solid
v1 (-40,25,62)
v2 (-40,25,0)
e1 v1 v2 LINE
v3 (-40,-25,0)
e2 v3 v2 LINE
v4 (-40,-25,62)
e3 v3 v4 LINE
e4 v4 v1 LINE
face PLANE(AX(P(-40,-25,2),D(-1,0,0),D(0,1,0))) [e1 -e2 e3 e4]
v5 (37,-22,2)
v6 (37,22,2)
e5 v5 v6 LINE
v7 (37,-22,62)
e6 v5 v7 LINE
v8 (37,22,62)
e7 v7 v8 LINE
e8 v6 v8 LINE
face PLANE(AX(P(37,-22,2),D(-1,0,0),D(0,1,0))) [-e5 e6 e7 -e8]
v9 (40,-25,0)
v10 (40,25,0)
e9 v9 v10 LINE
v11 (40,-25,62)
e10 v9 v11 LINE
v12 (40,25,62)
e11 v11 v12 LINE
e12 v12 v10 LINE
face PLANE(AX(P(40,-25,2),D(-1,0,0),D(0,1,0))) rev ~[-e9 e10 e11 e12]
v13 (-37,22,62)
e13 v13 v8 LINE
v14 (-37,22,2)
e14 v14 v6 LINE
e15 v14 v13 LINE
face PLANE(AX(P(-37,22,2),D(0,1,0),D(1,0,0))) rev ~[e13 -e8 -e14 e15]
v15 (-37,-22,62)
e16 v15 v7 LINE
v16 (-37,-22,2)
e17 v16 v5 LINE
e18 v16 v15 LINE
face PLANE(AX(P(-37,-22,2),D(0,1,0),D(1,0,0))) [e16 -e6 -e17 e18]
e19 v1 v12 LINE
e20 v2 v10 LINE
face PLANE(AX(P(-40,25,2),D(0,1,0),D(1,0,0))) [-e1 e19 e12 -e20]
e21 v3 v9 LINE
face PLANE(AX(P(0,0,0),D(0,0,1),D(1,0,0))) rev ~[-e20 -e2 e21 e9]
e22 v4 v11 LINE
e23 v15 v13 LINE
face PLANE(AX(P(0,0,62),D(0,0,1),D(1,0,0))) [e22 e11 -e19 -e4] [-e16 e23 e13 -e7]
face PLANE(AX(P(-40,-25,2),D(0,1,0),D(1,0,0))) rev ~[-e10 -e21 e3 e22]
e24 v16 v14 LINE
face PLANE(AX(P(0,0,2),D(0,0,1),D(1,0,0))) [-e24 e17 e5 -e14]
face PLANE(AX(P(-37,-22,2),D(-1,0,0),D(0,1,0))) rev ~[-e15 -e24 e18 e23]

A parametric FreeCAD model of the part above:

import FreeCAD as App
import Part
import Sketcher

V = App.Vector
Q = App.Units.Quantity

doc = App.newDocument("Part")
params = doc.addObject("Spreadsheet::Sheet", "Params")
for row, (alias, value) in enumerate([
    ("sketch1_width", "80 mm"),
    ("sketch1_height", "50 mm"),
    ("pad1_length", "2 mm"),
    ("sketch2_width", "80 mm"),
    ("sketch2_width2", "74 mm"),
    ("sketch2_height", "50 mm"),
    ("sketch2_height2", "44 mm"),
    ("pad2_length", "60 mm"),
], start=1):
    params.set(f"A{row}", alias)
    params.set(f"B{row}", "=" + value)
    params.setAlias(f"B{row}", alias)

body = doc.addObject("PartDesign::Body", "Body")

sketch1 = body.newObject("Sketcher::SketchObject", "Sketch")
sketch1.AttachmentSupport = (doc.getObject("XY_Plane"), [""])
sketch1.MapMode = "FlatFace"
sketch1.addGeometry([
    Part.LineSegment(V(-40, 25, 0), V(-40, -25, 0)),
    Part.LineSegment(V(-40, -25, 0), V(40, -25, 0)),
    Part.LineSegment(V(40, -25, 0), V(40, 25, 0)),
    Part.LineSegment(V(40, 25, 0), V(-40, 25, 0)),
], False)
sketch1.addConstraint([
    Sketcher.Constraint("Coincident", 0, 2, 1, 1),
    Sketcher.Constraint("Coincident", 1, 2, 2, 1),
    Sketcher.Constraint("Coincident", 2, 2, 3, 1),
    Sketcher.Constraint("Coincident", 3, 2, 0, 1),
    Sketcher.Constraint("Vertical", 0),
    Sketcher.Constraint("Horizontal", 1),
    Sketcher.Constraint("Vertical", 2),
    Sketcher.Constraint("Horizontal", 3),
    Sketcher.Constraint("Symmetric", 0, 2, 2, 2, -1, 1),
    Sketcher.Constraint("DistanceX", 1, 1, 1, 2, Q("80 mm")),
    Sketcher.Constraint("DistanceY", 0, 2, 0, 1, Q("50 mm")),
])
sketch1.setExpression("Constraints[9]", "Params.sketch1_width")
sketch1.setExpression("Constraints[10]", "Params.sketch1_height")
pad1 = body.newObject("PartDesign::Pad", "Pad")
pad1.Profile = sketch1
pad1.setExpression("Length", "Params.pad1_length")

sketch2 = body.newObject("Sketcher::SketchObject", "Sketch001")
sketch2.AttachmentSupport = (doc.getObject("XY_Plane"), [""])
sketch2.MapMode = "FlatFace"
sketch2.AttachmentOffset = App.Placement(V(0, 0, 2), App.Rotation())
sketch2.addGeometry([
    Part.LineSegment(V(-40, 25, 0), V(-40, -25, 0)),
    Part.LineSegment(V(-40, -25, 0), V(40, -25, 0)),
    Part.LineSegment(V(40, -25, 0), V(40, 25, 0)),
    Part.LineSegment(V(40, 25, 0), V(-40, 25, 0)),
    Part.LineSegment(V(37, -22, 0), V(-37, -22, 0)),
    Part.LineSegment(V(-37, -22, 0), V(-37, 22, 0)),
    Part.LineSegment(V(-37, 22, 0), V(37, 22, 0)),
    Part.LineSegment(V(37, 22, 0), V(37, -22, 0)),
], False)
sketch2.addConstraint([
    Sketcher.Constraint("Coincident", 0, 2, 1, 1),
    Sketcher.Constraint("Coincident", 1, 2, 2, 1),
    Sketcher.Constraint("Coincident", 2, 2, 3, 1),
    Sketcher.Constraint("Coincident", 3, 2, 0, 1),
    Sketcher.Constraint("Coincident", 4, 2, 5, 1),
    Sketcher.Constraint("Coincident", 5, 2, 6, 1),
    Sketcher.Constraint("Coincident", 6, 2, 7, 1),
    Sketcher.Constraint("Coincident", 7, 2, 4, 1),
    Sketcher.Constraint("Vertical", 0),
    Sketcher.Constraint("Horizontal", 1),
    Sketcher.Constraint("Vertical", 2),
    Sketcher.Constraint("Horizontal", 3),
    Sketcher.Constraint("Horizontal", 4),
    Sketcher.Constraint("Vertical", 5),
    Sketcher.Constraint("Horizontal", 6),
    Sketcher.Constraint("Vertical", 7),
    Sketcher.Constraint("Symmetric", 0, 2, 2, 2, -1, 1),
    Sketcher.Constraint("Symmetric", 4, 2, 6, 2, -1, 1),
    Sketcher.Constraint("DistanceX", 1, 1, 1, 2, Q("80 mm")),
    Sketcher.Constraint("DistanceX", 4, 2, 4, 1, Q("74 mm")),
    Sketcher.Constraint("DistanceY", 0, 2, 0, 1, Q("50 mm")),
    Sketcher.Constraint("DistanceY", 5, 1, 5, 2, Q("44 mm")),
])
sketch2.setExpression("Constraints[18]", "Params.sketch2_width")
sketch2.setExpression("Constraints[19]", "Params.sketch2_width2")
sketch2.setExpression("Constraints[20]", "Params.sketch2_height")
sketch2.setExpression("Constraints[21]", "Params.sketch2_height2")
pad2 = body.newObject("PartDesign::Pad", "Pad001")
pad2.Profile = sketch2
pad2.setExpression("Length", "Params.pad2_length")

doc.recompute()
